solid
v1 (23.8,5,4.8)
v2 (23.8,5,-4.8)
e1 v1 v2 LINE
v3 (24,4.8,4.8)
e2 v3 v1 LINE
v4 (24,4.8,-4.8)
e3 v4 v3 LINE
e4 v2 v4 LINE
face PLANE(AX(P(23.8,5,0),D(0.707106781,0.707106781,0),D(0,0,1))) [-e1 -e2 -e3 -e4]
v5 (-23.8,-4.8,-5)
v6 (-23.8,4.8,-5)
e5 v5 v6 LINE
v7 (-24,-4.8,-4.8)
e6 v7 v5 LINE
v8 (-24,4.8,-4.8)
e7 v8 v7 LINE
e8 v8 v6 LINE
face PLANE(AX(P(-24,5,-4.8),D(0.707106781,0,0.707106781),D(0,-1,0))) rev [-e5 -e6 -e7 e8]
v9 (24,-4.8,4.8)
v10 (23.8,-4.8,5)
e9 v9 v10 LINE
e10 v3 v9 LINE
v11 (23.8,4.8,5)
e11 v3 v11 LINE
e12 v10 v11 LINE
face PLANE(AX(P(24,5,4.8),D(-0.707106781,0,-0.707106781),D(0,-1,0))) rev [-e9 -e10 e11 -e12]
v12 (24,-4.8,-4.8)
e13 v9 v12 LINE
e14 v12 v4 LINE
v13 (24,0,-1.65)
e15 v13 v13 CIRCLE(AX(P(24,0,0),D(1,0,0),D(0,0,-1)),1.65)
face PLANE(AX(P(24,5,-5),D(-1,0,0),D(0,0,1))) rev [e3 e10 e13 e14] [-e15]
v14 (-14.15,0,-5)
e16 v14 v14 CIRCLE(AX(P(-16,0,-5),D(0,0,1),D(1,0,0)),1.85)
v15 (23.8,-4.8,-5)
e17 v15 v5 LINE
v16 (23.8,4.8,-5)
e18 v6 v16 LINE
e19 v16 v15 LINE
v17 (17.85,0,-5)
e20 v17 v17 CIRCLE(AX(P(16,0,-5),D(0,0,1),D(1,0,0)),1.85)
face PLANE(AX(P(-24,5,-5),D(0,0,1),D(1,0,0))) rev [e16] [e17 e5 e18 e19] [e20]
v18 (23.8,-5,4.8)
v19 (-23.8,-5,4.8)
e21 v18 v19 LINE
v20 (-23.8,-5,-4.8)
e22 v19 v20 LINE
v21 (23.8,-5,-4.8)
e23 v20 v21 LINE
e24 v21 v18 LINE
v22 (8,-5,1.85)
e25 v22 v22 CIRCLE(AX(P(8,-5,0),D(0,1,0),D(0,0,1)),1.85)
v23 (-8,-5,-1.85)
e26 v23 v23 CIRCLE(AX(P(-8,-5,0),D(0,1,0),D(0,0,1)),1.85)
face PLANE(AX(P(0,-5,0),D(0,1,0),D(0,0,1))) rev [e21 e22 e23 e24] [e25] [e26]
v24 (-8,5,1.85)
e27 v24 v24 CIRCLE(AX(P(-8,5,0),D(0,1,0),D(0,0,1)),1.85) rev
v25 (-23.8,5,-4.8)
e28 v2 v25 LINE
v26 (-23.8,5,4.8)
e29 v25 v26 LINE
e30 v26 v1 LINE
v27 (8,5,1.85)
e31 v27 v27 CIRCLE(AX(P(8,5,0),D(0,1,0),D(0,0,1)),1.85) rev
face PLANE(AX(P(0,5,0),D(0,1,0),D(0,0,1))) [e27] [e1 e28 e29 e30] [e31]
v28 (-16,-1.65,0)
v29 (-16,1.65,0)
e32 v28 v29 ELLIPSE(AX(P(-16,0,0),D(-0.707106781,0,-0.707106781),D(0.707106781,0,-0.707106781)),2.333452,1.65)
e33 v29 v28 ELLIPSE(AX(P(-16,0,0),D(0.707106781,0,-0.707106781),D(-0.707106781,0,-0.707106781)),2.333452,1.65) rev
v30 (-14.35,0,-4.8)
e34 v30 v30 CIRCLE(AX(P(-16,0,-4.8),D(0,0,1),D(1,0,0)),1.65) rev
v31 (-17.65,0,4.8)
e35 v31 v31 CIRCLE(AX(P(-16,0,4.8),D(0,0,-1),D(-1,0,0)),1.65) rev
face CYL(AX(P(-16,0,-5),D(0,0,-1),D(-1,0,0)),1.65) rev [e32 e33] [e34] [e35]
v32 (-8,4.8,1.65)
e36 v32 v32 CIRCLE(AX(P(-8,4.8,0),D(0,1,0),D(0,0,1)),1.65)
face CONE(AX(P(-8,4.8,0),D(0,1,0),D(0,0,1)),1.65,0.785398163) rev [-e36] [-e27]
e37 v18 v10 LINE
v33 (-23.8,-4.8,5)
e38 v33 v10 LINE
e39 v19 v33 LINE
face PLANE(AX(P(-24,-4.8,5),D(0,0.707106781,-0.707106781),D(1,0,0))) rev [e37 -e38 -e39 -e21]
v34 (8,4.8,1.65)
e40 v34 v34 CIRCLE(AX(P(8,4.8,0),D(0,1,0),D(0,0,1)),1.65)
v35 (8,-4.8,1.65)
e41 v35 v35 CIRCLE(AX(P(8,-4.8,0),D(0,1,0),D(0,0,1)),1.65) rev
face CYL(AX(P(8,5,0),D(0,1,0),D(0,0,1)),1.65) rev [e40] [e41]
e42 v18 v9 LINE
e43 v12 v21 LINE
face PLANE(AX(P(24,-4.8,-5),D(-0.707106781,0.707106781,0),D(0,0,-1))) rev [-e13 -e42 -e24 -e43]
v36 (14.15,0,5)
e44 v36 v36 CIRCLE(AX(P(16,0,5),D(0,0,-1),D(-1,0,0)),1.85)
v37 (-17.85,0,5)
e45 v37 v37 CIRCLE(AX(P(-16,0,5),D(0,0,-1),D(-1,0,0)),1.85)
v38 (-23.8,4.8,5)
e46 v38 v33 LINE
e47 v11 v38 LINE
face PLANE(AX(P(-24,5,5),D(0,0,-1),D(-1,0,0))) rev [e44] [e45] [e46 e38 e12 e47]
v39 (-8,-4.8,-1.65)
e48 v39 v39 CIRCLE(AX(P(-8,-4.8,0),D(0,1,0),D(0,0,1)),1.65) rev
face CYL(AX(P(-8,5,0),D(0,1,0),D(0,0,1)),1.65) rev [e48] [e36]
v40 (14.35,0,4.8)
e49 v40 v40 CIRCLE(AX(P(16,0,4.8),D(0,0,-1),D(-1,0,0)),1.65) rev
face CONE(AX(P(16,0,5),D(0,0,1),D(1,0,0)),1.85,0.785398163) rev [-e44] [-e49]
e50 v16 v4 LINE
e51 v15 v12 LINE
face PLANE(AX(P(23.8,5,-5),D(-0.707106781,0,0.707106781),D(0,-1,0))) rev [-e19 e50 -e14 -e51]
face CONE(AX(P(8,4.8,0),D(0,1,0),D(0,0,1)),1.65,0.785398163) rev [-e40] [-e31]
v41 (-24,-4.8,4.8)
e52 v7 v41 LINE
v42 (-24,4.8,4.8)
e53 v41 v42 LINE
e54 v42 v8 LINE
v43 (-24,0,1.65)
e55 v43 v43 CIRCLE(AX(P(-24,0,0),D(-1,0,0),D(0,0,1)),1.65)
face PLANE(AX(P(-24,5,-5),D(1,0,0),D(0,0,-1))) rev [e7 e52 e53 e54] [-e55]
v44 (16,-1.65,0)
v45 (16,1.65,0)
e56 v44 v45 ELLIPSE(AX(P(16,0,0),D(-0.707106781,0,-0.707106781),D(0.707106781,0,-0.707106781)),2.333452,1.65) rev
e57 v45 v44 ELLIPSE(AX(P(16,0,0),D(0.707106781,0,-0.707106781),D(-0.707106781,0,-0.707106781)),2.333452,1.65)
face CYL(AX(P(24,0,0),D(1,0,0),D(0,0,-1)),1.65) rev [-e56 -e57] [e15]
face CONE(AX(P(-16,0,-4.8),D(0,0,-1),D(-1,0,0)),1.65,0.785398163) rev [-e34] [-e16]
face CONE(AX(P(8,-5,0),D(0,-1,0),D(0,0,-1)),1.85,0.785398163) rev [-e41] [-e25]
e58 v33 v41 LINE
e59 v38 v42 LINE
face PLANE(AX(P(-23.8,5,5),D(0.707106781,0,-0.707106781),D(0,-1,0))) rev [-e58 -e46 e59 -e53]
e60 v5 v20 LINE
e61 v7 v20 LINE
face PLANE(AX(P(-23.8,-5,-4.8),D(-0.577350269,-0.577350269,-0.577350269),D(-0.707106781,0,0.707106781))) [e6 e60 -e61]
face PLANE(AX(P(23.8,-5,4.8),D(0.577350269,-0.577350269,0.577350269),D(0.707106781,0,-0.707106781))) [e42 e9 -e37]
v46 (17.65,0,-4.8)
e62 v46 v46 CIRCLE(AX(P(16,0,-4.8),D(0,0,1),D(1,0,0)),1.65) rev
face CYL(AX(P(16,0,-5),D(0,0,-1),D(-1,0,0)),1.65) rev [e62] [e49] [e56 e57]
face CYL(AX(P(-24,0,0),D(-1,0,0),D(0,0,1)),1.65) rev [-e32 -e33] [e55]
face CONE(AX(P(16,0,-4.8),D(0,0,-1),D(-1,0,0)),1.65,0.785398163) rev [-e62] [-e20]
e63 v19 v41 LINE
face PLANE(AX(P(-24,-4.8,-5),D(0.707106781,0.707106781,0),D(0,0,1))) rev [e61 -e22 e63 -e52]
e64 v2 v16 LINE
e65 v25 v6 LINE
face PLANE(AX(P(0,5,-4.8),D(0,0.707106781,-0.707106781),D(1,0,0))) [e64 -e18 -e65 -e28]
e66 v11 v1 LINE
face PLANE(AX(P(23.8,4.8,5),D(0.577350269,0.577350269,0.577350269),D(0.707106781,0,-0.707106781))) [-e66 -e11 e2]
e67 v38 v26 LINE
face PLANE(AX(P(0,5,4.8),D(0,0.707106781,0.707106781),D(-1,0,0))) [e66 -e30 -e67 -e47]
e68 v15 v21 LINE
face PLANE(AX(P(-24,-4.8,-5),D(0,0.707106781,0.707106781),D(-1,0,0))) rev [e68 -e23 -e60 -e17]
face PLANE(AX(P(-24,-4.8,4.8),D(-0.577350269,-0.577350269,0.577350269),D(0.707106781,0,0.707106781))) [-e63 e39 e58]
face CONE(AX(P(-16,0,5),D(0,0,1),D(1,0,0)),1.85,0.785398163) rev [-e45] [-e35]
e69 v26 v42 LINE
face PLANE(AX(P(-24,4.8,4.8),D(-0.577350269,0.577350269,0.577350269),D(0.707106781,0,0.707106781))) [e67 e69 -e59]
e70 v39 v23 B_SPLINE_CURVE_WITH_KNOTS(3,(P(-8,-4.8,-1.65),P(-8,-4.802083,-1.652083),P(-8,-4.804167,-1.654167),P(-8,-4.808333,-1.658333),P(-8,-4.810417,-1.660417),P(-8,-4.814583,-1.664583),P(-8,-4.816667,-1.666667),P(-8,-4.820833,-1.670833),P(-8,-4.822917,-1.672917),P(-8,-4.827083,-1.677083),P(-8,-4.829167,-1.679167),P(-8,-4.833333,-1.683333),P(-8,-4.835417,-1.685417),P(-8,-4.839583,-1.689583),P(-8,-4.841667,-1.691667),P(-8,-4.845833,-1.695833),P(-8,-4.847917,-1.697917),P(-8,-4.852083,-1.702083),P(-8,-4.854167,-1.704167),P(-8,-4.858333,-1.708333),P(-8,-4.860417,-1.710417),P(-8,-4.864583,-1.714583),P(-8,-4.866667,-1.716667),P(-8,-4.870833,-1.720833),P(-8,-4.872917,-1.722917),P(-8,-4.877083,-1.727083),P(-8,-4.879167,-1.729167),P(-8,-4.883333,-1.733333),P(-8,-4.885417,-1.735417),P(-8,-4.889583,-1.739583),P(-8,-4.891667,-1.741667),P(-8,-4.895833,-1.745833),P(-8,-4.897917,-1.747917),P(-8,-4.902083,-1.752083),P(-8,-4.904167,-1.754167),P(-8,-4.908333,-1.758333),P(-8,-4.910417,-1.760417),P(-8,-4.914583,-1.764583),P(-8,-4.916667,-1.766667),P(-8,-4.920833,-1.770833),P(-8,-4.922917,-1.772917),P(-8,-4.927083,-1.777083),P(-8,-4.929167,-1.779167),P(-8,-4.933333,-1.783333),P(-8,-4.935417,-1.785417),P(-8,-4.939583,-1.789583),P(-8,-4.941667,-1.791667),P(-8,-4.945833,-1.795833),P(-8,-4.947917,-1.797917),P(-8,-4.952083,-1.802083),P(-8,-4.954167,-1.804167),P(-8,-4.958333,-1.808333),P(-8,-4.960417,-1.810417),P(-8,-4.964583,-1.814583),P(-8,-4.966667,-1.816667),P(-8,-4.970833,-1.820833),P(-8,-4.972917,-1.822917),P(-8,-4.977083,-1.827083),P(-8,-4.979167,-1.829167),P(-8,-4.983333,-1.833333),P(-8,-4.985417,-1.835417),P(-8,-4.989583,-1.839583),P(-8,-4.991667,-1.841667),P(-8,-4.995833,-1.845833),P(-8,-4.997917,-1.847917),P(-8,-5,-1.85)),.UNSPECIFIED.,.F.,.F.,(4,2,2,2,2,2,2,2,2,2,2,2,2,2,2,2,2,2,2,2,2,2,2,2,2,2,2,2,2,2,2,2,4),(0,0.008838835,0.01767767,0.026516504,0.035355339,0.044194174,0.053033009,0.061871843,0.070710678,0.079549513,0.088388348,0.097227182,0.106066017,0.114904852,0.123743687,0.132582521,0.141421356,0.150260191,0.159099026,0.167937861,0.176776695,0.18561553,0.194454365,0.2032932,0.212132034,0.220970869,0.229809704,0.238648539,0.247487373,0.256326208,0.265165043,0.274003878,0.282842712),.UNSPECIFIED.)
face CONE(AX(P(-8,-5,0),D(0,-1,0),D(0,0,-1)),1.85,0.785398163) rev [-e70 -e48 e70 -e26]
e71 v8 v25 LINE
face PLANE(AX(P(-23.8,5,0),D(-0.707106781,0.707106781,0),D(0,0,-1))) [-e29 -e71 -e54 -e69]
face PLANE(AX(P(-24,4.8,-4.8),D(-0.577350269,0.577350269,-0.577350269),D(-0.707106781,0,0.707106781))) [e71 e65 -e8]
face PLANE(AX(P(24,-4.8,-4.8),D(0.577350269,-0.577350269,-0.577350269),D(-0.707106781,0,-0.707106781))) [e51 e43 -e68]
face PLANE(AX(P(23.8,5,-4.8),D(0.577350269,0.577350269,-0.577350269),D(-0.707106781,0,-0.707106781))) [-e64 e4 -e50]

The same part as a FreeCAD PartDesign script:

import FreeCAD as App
import Part
import Sketcher
from FreeCAD import Vector


def add_polygon(sketch, points):
    """Adds a closed chain of lines whose ends are joined by coincident constraints."""
    first, n = sketch.GeometryCount, len(points)
    for a, b in zip(points, points[1:] + points[:1]):
        sketch.addGeometry(Part.LineSegment(App.Vector(*a, 0), App.Vector(*b, 0)), False)
    for i in range(n):
        sketch.addConstraint(Sketcher.Constraint("Coincident", first + i, 2, first + (i + 1) % n, 1))

doc = App.newDocument("Part")
body = doc.addObject("PartDesign::Body", "Body")

sketch1 = body.newObject("Sketcher::SketchObject", "Sketch")
sketch1.AttachmentSupport = (doc.getObject("XZ_Plane"), [""])
sketch1.MapMode = "FlatFace"
add_polygon(sketch1, [(-24, -5), (-24, 5), (24, 5), (24, -5)])
sketch1.addConstraint([
    Sketcher.Constraint("Vertical", 0),
    Sketcher.Constraint("Horizontal", 1),
    Sketcher.Constraint("Vertical", 2),
    Sketcher.Constraint("Horizontal", 3),
    Sketcher.Constraint("Symmetric", 0, 2, 2, 2, -1, 1),
    Sketcher.Constraint("DistanceX", 1, 1, 1, 2, 48.0),
    Sketcher.Constraint("DistanceY", 0, 1, 0, 2, 10.0),
])
pad1 = body.newObject("PartDesign::Pad", "Pad")
pad1.Profile = sketch1
pad1.Length = 10
pad1.Midplane = True

sketch2 = body.newObject("Sketcher::SketchObject", "Sketch001")
sketch2.AttachmentSupport = (doc.getObject("XZ_Plane"), [""])
sketch2.MapMode = "FlatFace"
sketch2.AttachmentOffset = App.Placement(Vector(0, 0, -5), App.Rotation())
sketch2.addGeometry([
    Part.Circle(Vector(-8, 0, 0), Vector(0, 0, 1), 1.6),
    Part.Circle(Vector(8, 0, 0), Vector(0, 0, 1), 1.6),
], False)
sketch2.addConstraint([
    Sketcher.Constraint("Equal", 0, 1),
    Sketcher.Constraint("Symmetric", 0, 3, 1, 3, -1, 1),
    Sketcher.Constraint("PointOnObject", 0, 3, -1),
    Sketcher.Constraint("Diameter", 0, 3.3),
    Sketcher.Constraint("DistanceX", 0, 3, -1, 1, 8.0),
])
doc.recompute()
hole = body.newObject("PartDesign::Hole", "Hole")
hole.Profile = sketch2
hole.ThreadType = "None"
hole.Diameter = 3.3
hole.DepthType = "ThroughAll"
hole.Reversed = True

sketch3 = body.newObject("Sketcher::SketchObject", "Sketch002")
sketch3.AttachmentSupport = (doc.getObject("XY_Plane"), [""])
sketch3.MapMode = "FlatFace"
sketch3.AttachmentOffset = App.Placement(Vector(0, 0, -5), App.Rotation())
sketch3.addGeometry([
    Part.Circle(Vector(16, 0, 0), Vector(0, 0, 1), 1.6),
    Part.Circle(Vector(-16, 0, 0), Vector(0, 0, 1), 1.6),
], False)
sketch3.addConstraint([
    Sketcher.Constraint("Equal", 0, 1),
    Sketcher.Constraint("Symmetric", 0, 3, 1, 3, -1, 1),
    Sketcher.Constraint("PointOnObject", 0, 3, -1),
    Sketcher.Constraint("Diameter", 0, 3.3),
    Sketcher.Constraint("DistanceX", -1, 1, 0, 3, 16.0),
])
doc.recompute()
hole2 = body.newObject("PartDesign::Hole", "Hole001")
hole2.Profile = sketch3
hole2.ThreadType = "None"
hole2.Diameter = 3.3
hole2.DepthType = "ThroughAll"
hole2.Reversed = True
doc.recompute()

chamfer = body.newObject("PartDesign::Chamfer", "Chamfer")
chamfer.Base = (hole2, ["Edge1"])
chamfer.UseAllEdges = True
chamfer.Size = 0.2

sketch4 = body.newObject("Sketcher::SketchObject", "Sketch003")
sketch4.AttachmentSupport = (doc.getObject("YZ_Plane"), [""])
sketch4.MapMode = "FlatFace"
sketch4.AttachmentOffset = App.Placement(Vector(0, 0, -24), App.Rotation())
sketch4.addGeometry(Part.Circle(Vector(0, 0, 0), Vector(0, 0, 1), 1.6), False)
sketch4.addConstraint([
    Sketcher.Constraint("Coincident", 0, 3, -1, 1),
    Sketcher.Constraint("Diameter", 0, 3.3),
])
pocket1 = body.newObject("PartDesign::Pocket", "Pocket")
pocket1.Profile = sketch4
pocket1.Length = 8
pocket1.Reversed = True

sketch5 = body.newObject("Sketcher::SketchObject", "Sketch004")
sketch5.AttachmentSupport = (doc.getObject("YZ_Plane"), [""])
sketch5.MapMode = "FlatFace"
sketch5.AttachmentOffset = App.Placement(Vector(0, 0, 24), App.Rotation())
sketch5.addGeometry(Part.Circle(Vector(0, 0, 0), Vector(0, 0, 1), 1.6), False)
sketch5.addConstraint([
    Sketcher.Constraint("Coincident", 0, 3, -1, 1),
    Sketcher.Constraint("Diameter", 0, 3.3),
])
pocket2 = body.newObject("PartDesign::Pocket", "Pocket001")
pocket2.Profile = sketch5
pocket2.Type = "UpToFirst"

doc.recompute()
